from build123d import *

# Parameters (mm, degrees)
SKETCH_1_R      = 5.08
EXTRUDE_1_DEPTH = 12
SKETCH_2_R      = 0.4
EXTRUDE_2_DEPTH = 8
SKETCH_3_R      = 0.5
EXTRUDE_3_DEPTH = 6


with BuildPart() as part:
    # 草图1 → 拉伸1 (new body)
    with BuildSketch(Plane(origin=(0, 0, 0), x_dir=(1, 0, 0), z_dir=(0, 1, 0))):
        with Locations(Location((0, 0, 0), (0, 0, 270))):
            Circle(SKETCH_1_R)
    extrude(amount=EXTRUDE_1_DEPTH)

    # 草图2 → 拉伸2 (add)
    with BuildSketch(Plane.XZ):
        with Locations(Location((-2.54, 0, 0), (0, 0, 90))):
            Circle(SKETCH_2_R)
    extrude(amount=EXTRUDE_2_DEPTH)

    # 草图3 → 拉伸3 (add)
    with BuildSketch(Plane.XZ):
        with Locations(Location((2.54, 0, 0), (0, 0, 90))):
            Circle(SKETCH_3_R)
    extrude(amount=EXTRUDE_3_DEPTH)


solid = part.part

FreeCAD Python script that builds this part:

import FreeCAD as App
import Part
import Sketcher

doc = App.newDocument("Part")
body = doc.addObject("PartDesign::Body", "Body")

sketch1 = body.newObject("Sketcher::SketchObject", "Sketch")
sketch1.AttachmentSupport = (doc.getObject("XZ_Plane"), [""])
sketch1.MapMode = "FlatFace"
sketch1.addGeometry(Part.Circle(App.Vector(0, 0, 0), App.Vector(0, 0, 1), 5), False)
sketch1.addConstraint([
    Sketcher.Constraint("Coincident", 0, 3, -1, 1),
    Sketcher.Constraint("Diameter", 0, 10.16),
])
pad1 = body.newObject("PartDesign::Pad", "Pad")
pad1.Profile = sketch1
pad1.Length = 12
pad1.Reversed = True

sketch2 = body.newObject("Sketcher::SketchObject", "Sketch001")
sketch2.AttachmentSupport = (doc.getObject("XZ_Plane"), [""])
sketch2.MapMode = "FlatFace"
sketch2.addGeometry(Part.Circle(App.Vector(-2.54, 0, 0), App.Vector(0, 0, 1), 0.4), False)
sketch2.addConstraint([
    Sketcher.Constraint("PointOnObject", 0, 3, -1),
    Sketcher.Constraint("Diameter", 0, 0.8),
    Sketcher.Constraint("DistanceX", 0, 3, -1, 1, 2.54),
])
pad2 = body.newObject("PartDesign::Pad", "Pad001")
pad2.Profile = sketch2
pad2.Length = 8

sketch3 = body.newObject("Sketcher::SketchObject", "Sketch002")
sketch3.AttachmentSupport = (doc.getObject("XZ_Plane"), [""])
sketch3.MapMode = "FlatFace"
sketch3.addGeometry(Part.Circle(App.Vector(2.5, 0, 0), App.Vector(0, 0, 1), 0.5), False)
sketch3.addConstraint([
    Sketcher.Constraint("PointOnObject", 0, 3, -1),
    Sketcher.Constraint("Diameter", 0, 1.0),
    Sketcher.Constraint("DistanceX", -1, 1, 0, 3, 2.54),
])
pad3 = body.newObject("PartDesign::Pad", "Pad002")
pad3.Profile = sketch3
pad3.Length = 6

doc.recompute()
